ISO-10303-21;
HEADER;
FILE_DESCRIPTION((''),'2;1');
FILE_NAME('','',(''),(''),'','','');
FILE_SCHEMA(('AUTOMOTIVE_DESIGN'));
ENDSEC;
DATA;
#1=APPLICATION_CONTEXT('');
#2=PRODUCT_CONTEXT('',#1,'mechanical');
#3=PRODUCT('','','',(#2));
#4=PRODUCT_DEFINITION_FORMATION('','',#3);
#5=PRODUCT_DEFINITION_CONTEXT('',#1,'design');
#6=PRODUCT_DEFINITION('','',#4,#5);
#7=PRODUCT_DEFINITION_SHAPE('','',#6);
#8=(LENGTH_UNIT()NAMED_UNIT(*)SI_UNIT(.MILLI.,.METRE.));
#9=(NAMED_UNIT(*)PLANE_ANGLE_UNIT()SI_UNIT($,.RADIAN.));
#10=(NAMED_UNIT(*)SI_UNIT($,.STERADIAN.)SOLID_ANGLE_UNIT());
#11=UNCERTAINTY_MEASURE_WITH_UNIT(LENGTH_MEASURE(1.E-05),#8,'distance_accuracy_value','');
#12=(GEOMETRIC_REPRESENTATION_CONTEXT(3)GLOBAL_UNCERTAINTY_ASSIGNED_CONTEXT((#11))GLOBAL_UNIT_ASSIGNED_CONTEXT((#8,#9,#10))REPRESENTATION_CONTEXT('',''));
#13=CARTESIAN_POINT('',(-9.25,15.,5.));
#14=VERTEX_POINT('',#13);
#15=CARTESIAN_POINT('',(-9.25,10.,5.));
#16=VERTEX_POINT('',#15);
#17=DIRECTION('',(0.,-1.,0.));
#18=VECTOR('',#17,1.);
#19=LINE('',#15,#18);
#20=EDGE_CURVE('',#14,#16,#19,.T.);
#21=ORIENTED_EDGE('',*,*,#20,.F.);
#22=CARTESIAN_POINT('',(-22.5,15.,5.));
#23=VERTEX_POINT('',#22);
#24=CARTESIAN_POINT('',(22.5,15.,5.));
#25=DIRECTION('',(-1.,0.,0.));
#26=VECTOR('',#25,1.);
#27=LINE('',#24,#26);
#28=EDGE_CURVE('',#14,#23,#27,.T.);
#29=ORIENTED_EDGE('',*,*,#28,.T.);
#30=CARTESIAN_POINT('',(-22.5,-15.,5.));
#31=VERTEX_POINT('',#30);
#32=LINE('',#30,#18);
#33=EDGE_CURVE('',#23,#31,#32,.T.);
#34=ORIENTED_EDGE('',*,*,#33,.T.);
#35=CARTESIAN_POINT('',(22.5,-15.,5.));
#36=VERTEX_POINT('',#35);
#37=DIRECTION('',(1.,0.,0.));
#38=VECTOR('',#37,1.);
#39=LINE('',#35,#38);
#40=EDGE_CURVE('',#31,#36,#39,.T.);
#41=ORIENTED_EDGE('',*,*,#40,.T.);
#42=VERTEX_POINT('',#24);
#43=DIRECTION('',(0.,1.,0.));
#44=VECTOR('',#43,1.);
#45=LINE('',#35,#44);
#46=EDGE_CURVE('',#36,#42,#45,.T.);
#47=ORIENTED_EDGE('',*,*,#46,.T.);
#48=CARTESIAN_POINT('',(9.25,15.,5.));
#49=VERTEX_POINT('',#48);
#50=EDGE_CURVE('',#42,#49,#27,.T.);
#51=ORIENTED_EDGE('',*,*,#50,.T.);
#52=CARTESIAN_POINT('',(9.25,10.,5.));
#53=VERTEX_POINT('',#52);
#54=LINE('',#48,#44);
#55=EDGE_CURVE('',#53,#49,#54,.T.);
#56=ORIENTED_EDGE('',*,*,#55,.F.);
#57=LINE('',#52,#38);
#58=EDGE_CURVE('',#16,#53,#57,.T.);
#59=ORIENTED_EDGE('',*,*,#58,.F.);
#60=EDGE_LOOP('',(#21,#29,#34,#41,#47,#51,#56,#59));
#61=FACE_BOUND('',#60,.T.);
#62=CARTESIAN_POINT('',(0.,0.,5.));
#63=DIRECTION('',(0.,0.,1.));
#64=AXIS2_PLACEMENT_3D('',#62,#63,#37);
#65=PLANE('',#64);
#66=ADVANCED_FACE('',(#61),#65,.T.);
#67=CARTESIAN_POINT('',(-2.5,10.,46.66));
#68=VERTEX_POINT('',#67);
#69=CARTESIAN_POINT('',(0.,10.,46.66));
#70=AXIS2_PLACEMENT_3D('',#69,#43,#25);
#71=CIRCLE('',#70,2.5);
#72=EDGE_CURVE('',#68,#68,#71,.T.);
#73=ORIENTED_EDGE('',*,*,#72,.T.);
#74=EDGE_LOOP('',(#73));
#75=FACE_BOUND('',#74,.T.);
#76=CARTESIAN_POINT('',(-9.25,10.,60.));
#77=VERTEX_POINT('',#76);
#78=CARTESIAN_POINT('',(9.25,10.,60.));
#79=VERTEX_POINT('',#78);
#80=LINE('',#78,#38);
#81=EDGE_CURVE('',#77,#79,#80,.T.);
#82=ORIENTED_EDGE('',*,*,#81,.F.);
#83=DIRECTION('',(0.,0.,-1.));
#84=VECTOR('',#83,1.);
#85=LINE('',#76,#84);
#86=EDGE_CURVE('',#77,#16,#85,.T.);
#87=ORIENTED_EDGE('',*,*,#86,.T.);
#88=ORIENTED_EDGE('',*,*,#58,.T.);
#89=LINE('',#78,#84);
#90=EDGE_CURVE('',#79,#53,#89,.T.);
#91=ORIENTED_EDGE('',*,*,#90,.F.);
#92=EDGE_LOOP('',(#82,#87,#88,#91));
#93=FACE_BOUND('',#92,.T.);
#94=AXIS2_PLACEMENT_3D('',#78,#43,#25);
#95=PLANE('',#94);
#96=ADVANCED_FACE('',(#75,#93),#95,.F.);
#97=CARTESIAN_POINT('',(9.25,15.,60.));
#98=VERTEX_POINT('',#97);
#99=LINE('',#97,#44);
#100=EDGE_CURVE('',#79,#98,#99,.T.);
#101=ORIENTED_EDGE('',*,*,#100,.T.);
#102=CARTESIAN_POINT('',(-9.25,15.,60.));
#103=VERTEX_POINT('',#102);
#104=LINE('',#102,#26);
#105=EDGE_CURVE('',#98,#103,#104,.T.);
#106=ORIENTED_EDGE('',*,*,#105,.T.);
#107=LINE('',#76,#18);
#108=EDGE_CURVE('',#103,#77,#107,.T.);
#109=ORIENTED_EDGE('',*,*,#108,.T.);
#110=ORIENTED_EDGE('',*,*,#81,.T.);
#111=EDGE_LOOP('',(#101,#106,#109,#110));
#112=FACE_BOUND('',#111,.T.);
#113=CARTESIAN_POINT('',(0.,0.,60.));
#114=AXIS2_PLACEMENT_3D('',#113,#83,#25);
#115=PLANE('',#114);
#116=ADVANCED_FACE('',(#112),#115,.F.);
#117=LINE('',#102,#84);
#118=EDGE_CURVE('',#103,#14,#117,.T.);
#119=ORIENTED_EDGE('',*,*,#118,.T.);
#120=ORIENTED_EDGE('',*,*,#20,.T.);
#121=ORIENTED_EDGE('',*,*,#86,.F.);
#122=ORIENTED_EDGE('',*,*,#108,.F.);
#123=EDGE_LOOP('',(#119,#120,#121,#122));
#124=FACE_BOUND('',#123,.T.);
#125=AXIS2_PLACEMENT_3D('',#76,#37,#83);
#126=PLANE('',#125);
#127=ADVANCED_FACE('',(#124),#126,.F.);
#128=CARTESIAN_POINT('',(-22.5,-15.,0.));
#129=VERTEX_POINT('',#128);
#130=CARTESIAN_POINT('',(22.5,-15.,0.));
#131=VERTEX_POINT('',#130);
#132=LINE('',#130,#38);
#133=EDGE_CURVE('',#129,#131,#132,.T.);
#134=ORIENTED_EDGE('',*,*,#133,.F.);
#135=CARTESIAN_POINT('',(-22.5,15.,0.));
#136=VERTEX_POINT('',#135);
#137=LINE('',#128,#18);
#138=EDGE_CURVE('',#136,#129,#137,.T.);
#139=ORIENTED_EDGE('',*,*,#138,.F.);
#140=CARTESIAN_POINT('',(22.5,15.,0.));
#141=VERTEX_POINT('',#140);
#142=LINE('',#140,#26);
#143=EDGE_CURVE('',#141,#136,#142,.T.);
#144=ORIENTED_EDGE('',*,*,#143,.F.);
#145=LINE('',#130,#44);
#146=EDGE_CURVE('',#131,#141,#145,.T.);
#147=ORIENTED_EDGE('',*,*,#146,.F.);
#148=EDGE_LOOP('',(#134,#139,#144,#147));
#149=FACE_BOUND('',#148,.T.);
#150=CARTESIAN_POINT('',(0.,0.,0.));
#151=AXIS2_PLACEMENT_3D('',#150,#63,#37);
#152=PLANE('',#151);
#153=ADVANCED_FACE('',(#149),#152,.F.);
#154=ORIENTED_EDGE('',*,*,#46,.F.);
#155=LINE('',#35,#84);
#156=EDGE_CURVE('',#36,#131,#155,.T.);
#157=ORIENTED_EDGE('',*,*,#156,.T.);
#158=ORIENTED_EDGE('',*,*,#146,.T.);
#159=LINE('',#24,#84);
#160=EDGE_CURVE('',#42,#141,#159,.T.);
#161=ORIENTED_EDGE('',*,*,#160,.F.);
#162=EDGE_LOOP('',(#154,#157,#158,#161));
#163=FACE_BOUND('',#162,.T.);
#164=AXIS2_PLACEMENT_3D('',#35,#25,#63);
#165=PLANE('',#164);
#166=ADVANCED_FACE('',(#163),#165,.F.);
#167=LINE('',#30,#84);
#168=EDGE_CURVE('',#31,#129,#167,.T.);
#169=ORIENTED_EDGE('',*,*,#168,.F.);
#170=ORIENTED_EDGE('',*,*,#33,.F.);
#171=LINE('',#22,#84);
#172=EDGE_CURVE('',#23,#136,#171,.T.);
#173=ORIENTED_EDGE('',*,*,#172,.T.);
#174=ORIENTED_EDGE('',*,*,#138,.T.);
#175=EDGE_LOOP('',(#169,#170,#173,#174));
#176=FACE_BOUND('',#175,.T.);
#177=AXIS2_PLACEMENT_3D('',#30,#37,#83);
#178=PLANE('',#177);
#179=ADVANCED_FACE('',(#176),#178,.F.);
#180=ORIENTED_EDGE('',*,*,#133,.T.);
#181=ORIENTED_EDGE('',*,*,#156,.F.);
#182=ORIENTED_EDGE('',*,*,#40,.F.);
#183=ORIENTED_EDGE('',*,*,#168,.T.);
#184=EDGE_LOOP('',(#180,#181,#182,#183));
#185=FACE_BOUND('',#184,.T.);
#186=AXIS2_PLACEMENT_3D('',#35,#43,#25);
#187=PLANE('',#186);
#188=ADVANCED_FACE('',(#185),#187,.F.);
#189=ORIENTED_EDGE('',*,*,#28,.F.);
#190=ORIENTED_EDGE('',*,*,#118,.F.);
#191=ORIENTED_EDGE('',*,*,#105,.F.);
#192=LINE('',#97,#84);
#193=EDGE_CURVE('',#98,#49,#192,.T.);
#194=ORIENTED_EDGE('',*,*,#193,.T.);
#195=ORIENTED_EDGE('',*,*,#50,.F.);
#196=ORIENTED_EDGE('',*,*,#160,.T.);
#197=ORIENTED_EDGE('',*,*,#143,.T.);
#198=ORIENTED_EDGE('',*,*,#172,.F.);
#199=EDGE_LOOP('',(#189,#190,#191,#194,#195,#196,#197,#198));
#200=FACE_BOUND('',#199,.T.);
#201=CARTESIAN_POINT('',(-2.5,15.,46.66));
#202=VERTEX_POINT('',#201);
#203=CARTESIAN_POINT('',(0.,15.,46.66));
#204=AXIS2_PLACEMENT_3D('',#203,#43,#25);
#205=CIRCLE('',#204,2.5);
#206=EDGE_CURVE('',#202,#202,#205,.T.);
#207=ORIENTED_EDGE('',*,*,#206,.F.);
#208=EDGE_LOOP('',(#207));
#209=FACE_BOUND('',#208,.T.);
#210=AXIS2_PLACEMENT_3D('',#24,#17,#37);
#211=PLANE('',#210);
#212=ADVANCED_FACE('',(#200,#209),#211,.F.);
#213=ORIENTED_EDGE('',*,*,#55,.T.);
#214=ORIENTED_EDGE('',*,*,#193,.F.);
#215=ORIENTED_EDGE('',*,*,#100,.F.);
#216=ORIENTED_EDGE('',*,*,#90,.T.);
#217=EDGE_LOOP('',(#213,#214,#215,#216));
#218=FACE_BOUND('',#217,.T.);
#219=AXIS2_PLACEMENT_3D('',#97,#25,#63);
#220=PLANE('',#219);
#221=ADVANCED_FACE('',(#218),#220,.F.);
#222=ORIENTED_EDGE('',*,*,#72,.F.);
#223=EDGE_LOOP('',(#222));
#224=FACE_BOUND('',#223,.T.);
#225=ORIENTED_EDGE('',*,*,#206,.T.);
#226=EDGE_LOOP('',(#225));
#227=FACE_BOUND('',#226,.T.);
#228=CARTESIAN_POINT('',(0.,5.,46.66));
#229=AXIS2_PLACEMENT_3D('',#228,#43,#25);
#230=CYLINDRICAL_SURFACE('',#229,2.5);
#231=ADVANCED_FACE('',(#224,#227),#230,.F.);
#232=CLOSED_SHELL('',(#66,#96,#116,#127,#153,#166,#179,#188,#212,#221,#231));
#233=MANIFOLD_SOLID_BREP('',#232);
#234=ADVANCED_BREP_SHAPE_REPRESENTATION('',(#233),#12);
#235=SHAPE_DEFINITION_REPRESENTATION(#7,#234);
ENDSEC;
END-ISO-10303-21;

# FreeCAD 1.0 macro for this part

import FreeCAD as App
import Part
import Sketcher

V = App.Vector
Q = App.Units.Quantity


def add_polygon(sketch, points):
    """Adds a closed chain of lines whose ends are joined by coincident constraints."""
    first, n = sketch.GeometryCount, len(points)
    for a, b in zip(points, points[1:] + points[:1]):
        sketch.addGeometry(Part.LineSegment(App.Vector(*a, 0), App.Vector(*b, 0)), False)
    for i in range(n):
        sketch.addConstraint(Sketcher.Constraint("Coincident", first + i, 2, first + (i + 1) % n, 1))

doc = App.newDocument("Part")
body = doc.addObject("PartDesign::Body", "Body")

# Sketch on XY plane
sketch1 = body.newObject("Sketcher::SketchObject", "Sketch")
sketch1.AttachmentSupport = (doc.getObject("XY_Plane"), [""])
sketch1.MapMode = "FlatFace"
add_polygon(sketch1, [(-22, 15), (-22, -15), (22, -15), (22, 15)])  # lines 0-3
sketch1.addConstraint(Sketcher.Constraint("Vertical", 0))
sketch1.addConstraint(Sketcher.Constraint("Horizontal", 1))
sketch1.addConstraint(Sketcher.Constraint("Vertical", 2))
sketch1.addConstraint(Sketcher.Constraint("Horizontal", 3))
sketch1.addConstraint(Sketcher.Constraint("Symmetric", 0, 2, 2, 2, -1, 1))
sketch1.addConstraint(Sketcher.Constraint("DistanceX", 1, 1, 1, 2, Q("45 mm")))
sketch1.addConstraint(Sketcher.Constraint("DistanceY", 0, 2, 0, 1, Q("30 mm")))
pad1 = body.newObject("PartDesign::Pad", "Pad")
pad1.Profile = sketch1
pad1.Length = 5

# Sketch on XY plane
sketch2 = body.newObject("Sketcher::SketchObject", "Sketch001")
sketch2.AttachmentSupport = (doc.getObject("XY_Plane"), [""])
sketch2.MapMode = "FlatFace"
sketch2.AttachmentOffset = App.Placement(V(0, 0, 5), App.Rotation())
add_polygon(sketch2, [(-9, 15), (-9, 10), (9, 10), (9, 15)])  # lines 0-3
sketch2.addConstraint(Sketcher.Constraint("Vertical", 0))
sketch2.addConstraint(Sketcher.Constraint("Horizontal", 1))
sketch2.addConstraint(Sketcher.Constraint("Vertical", 2))
sketch2.addConstraint(Sketcher.Constraint("Horizontal", 3))
sketch2.addConstraint(Sketcher.Constraint("DistanceY", 0, 2, 0, 1, Q("5 mm")))
sketch2.addConstraint(Sketcher.Constraint("DistanceX", 1, 1, 1, 2, Q("18.5 mm")))
sketch2.addConstraint(Sketcher.Constraint("DistanceY", -1, 1, 0, 2, Q("10 mm")))
sketch2.addConstraint(Sketcher.Constraint("DistanceX", 0, 2, -1, 1, Q("9.25 mm")))
pad2 = body.newObject("PartDesign::Pad", "Pad001")
pad2.Profile = sketch2
pad2.Length = 55

# Sketch on XZ plane
sketch3 = body.newObject("Sketcher::SketchObject", "Sketch002")
sketch3.AttachmentSupport = (doc.getObject("XZ_Plane"), [""])
sketch3.MapMode = "FlatFace"
sketch3.AttachmentOffset = App.Placement(V(0, 0, -15), App.Rotation())
sketch3.addGeometry(Part.Circle(V(0, 46.7, 0), V(0, 0, 1), 2.5), False)
sketch3.addConstraint(Sketcher.Constraint("PointOnObject", 0, 3, -2))
sketch3.addConstraint(Sketcher.Constraint("Diameter", 0, Q("5 mm")))
sketch3.addConstraint(Sketcher.Constraint("DistanceY", -1, 1, 0, 3, Q("46.66 mm")))
pocket1 = body.newObject("PartDesign::Pocket", "Pocket")
pocket1.Profile = sketch3
pocket1.Length = 10
pocket1.Reversed = True

doc.recompute()
